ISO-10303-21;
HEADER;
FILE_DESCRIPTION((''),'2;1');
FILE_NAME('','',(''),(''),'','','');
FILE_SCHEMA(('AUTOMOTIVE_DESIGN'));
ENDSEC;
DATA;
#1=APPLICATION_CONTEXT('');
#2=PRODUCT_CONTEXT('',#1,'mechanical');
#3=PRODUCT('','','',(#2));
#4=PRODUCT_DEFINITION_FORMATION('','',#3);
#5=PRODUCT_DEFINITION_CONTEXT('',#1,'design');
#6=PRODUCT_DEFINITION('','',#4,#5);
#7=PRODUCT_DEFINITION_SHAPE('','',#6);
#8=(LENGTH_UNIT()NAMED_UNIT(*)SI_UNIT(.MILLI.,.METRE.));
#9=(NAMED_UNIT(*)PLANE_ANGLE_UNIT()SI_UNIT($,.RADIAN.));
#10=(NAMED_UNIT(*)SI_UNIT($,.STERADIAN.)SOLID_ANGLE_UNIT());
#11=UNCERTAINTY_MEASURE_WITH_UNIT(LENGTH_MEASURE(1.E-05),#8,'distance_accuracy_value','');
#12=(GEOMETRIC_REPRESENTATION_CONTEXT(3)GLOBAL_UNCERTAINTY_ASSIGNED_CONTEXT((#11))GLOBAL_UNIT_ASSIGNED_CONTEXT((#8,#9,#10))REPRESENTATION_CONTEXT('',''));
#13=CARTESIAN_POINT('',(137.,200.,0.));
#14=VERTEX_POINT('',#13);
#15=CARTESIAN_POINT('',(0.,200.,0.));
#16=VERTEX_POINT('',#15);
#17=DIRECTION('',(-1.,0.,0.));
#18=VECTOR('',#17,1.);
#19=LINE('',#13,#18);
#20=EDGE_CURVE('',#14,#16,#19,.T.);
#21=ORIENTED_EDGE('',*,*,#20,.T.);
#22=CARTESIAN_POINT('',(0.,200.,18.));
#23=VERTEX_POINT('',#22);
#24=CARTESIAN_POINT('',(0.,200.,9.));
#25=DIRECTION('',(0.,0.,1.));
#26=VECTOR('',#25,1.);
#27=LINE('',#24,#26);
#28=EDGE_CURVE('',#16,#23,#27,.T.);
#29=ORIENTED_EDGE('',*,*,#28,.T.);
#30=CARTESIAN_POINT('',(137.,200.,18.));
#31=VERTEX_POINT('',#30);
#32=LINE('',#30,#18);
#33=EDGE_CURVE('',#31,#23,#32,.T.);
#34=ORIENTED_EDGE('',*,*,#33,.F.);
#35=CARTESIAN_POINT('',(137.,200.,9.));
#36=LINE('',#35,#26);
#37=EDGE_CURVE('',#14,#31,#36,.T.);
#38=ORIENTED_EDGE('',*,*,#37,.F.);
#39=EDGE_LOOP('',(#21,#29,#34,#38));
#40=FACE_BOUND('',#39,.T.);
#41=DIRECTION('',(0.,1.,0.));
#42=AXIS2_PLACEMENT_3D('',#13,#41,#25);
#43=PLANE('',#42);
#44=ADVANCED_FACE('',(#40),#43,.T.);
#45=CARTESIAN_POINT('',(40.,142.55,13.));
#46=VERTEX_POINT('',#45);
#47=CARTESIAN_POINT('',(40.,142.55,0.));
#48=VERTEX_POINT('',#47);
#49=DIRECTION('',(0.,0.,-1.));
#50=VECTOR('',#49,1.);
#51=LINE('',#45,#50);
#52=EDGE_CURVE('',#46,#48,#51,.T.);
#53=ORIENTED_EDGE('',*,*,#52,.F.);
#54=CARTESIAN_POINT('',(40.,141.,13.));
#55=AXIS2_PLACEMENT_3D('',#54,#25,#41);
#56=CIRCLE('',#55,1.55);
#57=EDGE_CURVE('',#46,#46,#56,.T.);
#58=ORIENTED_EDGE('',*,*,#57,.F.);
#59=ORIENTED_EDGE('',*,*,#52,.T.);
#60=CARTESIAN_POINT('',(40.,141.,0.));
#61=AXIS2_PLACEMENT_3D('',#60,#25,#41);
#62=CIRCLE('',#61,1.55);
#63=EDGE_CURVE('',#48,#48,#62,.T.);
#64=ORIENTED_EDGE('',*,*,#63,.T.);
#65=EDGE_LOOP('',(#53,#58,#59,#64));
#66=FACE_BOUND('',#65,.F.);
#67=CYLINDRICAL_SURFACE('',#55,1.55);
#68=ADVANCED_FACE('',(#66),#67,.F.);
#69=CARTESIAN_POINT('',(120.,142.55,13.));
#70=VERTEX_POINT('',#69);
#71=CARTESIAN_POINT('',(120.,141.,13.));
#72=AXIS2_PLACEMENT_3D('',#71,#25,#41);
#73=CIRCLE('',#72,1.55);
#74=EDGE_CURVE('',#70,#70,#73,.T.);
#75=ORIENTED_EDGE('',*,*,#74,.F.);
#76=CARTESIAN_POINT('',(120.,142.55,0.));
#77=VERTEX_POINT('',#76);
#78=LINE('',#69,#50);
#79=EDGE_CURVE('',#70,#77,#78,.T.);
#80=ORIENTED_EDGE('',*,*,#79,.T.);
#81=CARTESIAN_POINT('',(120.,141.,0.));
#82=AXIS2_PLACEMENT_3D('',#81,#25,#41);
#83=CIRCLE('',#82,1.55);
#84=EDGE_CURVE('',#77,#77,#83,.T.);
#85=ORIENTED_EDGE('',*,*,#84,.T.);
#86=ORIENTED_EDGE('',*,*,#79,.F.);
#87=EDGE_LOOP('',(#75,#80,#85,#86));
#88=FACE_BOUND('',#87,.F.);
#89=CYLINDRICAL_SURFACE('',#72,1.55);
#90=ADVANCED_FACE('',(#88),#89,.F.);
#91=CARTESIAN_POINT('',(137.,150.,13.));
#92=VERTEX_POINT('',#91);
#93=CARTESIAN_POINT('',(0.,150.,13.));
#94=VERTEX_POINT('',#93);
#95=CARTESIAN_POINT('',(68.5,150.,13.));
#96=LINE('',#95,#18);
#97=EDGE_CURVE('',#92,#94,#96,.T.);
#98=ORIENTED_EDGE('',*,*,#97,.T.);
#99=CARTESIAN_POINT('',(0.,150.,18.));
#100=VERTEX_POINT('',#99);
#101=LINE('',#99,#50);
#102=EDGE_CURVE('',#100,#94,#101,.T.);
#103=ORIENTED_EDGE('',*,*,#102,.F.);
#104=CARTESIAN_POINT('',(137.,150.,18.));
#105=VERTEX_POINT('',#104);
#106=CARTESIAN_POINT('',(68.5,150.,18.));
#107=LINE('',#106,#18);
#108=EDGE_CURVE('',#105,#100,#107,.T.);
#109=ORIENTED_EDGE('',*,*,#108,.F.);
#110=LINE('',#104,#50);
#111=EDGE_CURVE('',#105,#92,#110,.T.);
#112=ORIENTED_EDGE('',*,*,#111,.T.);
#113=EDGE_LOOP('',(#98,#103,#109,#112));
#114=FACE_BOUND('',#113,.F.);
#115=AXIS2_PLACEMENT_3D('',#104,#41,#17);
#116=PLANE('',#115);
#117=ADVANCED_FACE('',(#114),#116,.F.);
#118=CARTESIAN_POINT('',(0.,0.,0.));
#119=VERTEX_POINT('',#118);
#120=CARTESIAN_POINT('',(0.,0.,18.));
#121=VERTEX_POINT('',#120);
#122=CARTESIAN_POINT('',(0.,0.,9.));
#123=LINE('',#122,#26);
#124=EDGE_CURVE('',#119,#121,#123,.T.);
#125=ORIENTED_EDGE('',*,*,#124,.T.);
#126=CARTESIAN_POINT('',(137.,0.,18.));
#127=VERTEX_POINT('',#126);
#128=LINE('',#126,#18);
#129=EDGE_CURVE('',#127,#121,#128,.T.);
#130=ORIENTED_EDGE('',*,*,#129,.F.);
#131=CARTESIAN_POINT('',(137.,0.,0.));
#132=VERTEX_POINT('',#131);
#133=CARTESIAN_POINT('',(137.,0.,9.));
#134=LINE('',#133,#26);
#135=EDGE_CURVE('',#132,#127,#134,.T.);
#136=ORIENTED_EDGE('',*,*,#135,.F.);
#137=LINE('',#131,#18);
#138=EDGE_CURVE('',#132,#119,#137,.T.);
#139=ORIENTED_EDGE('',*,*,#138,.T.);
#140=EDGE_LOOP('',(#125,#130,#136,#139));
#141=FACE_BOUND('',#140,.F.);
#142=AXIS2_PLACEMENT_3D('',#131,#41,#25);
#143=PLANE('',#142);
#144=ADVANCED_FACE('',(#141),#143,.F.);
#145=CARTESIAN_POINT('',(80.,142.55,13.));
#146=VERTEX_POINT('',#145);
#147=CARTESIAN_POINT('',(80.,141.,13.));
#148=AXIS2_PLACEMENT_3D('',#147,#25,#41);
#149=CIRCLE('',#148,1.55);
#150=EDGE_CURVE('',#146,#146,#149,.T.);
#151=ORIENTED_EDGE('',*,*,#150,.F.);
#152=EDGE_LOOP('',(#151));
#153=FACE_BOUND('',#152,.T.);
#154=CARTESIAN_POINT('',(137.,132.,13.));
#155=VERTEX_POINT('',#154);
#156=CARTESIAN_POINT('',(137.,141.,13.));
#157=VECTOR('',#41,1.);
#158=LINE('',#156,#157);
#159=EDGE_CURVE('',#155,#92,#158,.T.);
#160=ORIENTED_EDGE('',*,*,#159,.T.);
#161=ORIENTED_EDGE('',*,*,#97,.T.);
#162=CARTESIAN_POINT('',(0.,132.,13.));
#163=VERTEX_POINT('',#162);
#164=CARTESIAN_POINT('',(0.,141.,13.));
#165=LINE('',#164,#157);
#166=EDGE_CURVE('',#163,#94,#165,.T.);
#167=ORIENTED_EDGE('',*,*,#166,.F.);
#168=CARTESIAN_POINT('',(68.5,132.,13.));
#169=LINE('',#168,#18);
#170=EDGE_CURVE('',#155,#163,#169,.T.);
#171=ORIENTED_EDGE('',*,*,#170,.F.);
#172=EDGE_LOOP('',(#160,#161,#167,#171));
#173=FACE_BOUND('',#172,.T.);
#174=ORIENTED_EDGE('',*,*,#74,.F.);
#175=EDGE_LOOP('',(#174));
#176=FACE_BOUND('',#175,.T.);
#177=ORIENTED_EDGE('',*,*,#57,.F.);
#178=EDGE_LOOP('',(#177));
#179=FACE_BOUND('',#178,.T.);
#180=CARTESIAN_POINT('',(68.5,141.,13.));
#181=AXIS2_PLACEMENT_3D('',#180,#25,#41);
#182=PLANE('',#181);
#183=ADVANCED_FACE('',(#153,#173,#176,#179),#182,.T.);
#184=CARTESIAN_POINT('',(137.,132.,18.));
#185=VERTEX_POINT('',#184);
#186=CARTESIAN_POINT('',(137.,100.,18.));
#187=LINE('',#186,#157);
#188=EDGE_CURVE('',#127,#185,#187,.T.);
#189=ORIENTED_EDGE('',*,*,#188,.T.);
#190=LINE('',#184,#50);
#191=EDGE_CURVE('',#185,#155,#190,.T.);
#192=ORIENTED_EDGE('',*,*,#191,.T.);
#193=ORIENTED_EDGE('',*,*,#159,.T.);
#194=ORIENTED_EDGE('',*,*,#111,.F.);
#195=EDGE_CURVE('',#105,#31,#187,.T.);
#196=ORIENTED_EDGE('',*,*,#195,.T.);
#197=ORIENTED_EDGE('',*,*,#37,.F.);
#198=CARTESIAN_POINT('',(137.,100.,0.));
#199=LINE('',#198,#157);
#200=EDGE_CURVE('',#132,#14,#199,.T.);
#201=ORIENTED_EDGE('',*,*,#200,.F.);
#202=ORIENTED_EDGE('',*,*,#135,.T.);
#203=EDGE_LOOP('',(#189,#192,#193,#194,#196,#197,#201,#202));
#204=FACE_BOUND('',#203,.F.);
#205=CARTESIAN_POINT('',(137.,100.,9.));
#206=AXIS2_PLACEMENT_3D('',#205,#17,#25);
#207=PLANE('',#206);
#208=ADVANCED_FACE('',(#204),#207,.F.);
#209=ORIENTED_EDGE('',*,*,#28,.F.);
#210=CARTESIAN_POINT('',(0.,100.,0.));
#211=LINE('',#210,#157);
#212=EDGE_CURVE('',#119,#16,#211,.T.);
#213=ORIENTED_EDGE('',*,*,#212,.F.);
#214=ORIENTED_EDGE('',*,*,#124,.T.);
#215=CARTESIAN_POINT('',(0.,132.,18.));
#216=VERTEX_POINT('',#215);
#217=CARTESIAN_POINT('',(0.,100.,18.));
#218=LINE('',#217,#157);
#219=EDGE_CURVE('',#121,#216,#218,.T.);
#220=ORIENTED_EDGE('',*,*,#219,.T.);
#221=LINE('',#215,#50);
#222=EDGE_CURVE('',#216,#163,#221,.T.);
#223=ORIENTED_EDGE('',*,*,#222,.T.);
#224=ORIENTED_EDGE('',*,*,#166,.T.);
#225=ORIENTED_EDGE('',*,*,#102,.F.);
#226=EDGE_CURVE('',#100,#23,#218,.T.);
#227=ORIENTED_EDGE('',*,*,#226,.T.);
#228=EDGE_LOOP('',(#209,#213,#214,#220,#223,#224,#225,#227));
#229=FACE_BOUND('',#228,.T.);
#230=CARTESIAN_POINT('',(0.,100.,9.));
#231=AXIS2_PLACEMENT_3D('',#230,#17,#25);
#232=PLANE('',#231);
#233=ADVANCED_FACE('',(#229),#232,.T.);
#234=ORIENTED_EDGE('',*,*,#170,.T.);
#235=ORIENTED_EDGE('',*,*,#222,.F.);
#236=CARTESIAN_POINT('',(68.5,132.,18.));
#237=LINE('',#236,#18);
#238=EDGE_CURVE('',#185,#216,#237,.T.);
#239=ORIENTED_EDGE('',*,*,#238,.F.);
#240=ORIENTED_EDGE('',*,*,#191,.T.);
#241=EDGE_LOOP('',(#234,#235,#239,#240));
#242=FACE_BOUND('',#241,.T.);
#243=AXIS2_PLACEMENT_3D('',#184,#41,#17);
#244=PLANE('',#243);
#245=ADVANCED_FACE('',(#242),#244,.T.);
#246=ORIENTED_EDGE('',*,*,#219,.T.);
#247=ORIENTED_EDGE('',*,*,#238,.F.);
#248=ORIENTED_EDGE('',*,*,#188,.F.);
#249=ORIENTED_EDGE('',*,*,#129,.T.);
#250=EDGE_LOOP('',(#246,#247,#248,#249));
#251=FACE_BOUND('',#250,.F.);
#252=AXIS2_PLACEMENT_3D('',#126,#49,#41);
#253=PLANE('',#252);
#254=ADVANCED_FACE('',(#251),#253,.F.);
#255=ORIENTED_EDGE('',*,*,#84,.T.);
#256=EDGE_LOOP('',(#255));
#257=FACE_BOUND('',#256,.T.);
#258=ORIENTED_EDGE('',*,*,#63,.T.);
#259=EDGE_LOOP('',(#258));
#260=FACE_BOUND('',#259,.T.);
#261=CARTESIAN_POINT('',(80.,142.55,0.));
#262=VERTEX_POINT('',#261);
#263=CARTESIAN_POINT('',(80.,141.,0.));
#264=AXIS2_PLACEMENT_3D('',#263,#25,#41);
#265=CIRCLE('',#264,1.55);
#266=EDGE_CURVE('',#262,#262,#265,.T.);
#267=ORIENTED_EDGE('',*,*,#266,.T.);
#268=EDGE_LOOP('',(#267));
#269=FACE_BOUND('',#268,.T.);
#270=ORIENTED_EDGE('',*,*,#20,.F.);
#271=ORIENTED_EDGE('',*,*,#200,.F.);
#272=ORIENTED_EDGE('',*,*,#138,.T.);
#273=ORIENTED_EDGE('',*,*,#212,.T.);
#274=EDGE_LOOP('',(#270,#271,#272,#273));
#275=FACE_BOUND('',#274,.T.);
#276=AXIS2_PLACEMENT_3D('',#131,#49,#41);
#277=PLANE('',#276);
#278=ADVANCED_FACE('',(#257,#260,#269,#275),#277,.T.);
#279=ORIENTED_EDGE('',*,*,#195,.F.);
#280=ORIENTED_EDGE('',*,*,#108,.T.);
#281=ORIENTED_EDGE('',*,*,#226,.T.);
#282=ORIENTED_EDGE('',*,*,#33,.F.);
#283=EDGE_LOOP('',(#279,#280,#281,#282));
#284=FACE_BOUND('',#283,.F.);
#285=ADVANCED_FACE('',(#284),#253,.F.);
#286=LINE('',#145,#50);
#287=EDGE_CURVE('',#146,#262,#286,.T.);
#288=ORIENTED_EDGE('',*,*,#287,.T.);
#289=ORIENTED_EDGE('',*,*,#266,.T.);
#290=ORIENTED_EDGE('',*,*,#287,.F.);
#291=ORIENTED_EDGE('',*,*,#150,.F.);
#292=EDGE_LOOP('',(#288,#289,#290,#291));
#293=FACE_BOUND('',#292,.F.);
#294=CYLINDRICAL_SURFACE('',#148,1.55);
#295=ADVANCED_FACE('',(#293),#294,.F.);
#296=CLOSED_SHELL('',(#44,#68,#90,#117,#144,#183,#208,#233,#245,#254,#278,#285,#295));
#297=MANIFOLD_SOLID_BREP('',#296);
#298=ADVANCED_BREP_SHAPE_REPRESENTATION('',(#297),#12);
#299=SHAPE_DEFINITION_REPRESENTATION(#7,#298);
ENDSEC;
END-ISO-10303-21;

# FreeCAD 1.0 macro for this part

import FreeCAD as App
import Part
import Sketcher
Q = App.Units.Quantity


def add_polygon(sketch, points):
    """Adds a closed chain of lines whose ends are joined by coincident constraints."""
    first, n = sketch.GeometryCount, len(points)
    for a, b in zip(points, points[1:] + points[:1]):
        sketch.addGeometry(Part.LineSegment(App.Vector(*a, 0), App.Vector(*b, 0)), False)
    for i in range(n):
        sketch.addConstraint(Sketcher.Constraint("Coincident", first + i, 2, first + (i + 1) % n, 1))

doc = App.newDocument("Part")
params = doc.addObject("Spreadsheet::Sheet", "Params")
for row, (alias, value) in enumerate([
    ("sketch1_width", "18 mm"),
    ("sketch1_height", "200 mm"),
    ("pad1_length", "137 mm"),
    ("sketch2_width", "18 mm"),
    ("sketch2_height", "137 mm"),
    ("pocket1_length", "5 mm"),
    ("sketch3_diameter", "3.1 mm"),
], start=1):
    params.set(f"A{row}", alias)
    params.set(f"B{row}", "=" + value)
    params.setAlias(f"B{row}", alias)

body = doc.addObject("PartDesign::Body", "Body")

# Sketch on XY plane
sketch1 = body.newObject("Sketcher::SketchObject", "Sketch")
sketch1.AttachmentSupport = (doc.getObject("XY_Plane"), [""])
sketch1.MapMode = "FlatFace"
add_polygon(sketch1, [(0, 200), (0, 0), (18, 0), (18, 200)])  # lines 0-3
sketch1.addConstraint([
    Sketcher.Constraint("Vertical", 0),
    Sketcher.Constraint("Horizontal", 1),
    Sketcher.Constraint("Vertical", 2),
    Sketcher.Constraint("Horizontal", 3),
    Sketcher.Constraint("Coincident", 0, 2, -1, 1),
    Sketcher.Constraint("DistanceX", 1, 1, 1, 2, Q("18 mm")),
    Sketcher.Constraint("DistanceY", 0, 2, 0, 1, Q("200 mm")),
])
sketch1.setExpression("Constraints[9]", "Params.sketch1_width")
sketch1.setExpression("Constraints[10]", "Params.sketch1_height")
pad1 = body.newObject("PartDesign::Pad", "Pad")
pad1.Profile = sketch1
pad1.setExpression("Length", "Params.pad1_length")

# Sketch on YZ plane
sketch2 = body.newObject("Sketcher::SketchObject", "Sketch001")
sketch2.AttachmentSupport = (doc.getObject("YZ_Plane"), [""])
sketch2.MapMode = "FlatFace"
sketch2.AttachmentOffset = App.Placement(App.Vector(0, 0, 18), App.Rotation())
add_polygon(sketch2, [(132, 137), (132, 0), (150, 0), (150, 137)])  # lines 0-3
sketch2.addConstraint([
    Sketcher.Constraint("Vertical", 0),
    Sketcher.Constraint("Horizontal", 1),
    Sketcher.Constraint("Vertical", 2),
    Sketcher.Constraint("Horizontal", 3),
    Sketcher.Constraint("PointOnObject", 0, 2, -1),
    Sketcher.Constraint("DistanceX", 1, 1, 1, 2, Q("18 mm")),
    Sketcher.Constraint("DistanceY", 0, 2, 0, 1, Q("137 mm")),
    Sketcher.Constraint("DistanceX", -1, 1, 0, 2, Q("132 mm")),
])
sketch2.setExpression("Constraints[9]", "Params.sketch2_width")
sketch2.setExpression("Constraints[10]", "Params.sketch2_height")
pocket1 = body.newObject("PartDesign::Pocket", "Pocket")
pocket1.Profile = sketch2
pocket1.setExpression("Length", "Params.pocket1_length")

# Sketch on YZ plane
sketch3 = body.newObject("Sketcher::SketchObject", "Sketch002")
sketch3.AttachmentSupport = (doc.getObject("YZ_Plane"), [""])
sketch3.MapMode = "FlatFace"
sketch3.AttachmentOffset = App.Placement(App.Vector(0, 0, 13), App.Rotation())
sketch3.addGeometry([
    Part.Circle(App.Vector(141, 97, 0), App.Vector(0, 0, 1), 1.55),
    Part.Circle(App.Vector(141, 57, 0), App.Vector(0, 0, 1), 1.55),
    Part.Circle(App.Vector(141, 17, 0), App.Vector(0, 0, 1), 1.55),
], False)
sketch3.addConstraint([
    Sketcher.Constraint("Equal", 0, 1),
    Sketcher.Constraint("Equal", 1, 2),
    Sketcher.Constraint("Vertical", 0, 3, 1, 3),
    Sketcher.Constraint("Vertical", 1, 3, 2, 3),
    Sketcher.Constraint("Diameter", 0, Q("3.1 mm")),
    Sketcher.Constraint("DistanceX", -1, 1, 0, 3, Q("141 mm")),
    Sketcher.Constraint("DistanceY", -1, 1, 0, 3, Q("97 mm")),
    Sketcher.Constraint("DistanceY", -1, 1, 1, 3, Q("57 mm")),
    Sketcher.Constraint("DistanceY", -1, 1, 2, 3, Q("17 mm")),
])
sketch3.setExpression("Constraints[4]", "Params.sketch3_diameter")
pocket2 = body.newObject("PartDesign::Pocket", "Pocket001")
pocket2.Profile = sketch3
pocket2.Type = "ThroughAll"
body2 = doc.addObject("PartDesign::Body", "Body001")
doc.recompute()

body.Placement = App.Placement(App.Vector(137, 0, 0), App.Rotation(App.Vector(0, -1, 0), 90))
boolean = body2.newObject("PartDesign::Boolean", "Boolean")
boolean.Type = "Fuse"
boolean.addObjects([body])

doc.recompute()
